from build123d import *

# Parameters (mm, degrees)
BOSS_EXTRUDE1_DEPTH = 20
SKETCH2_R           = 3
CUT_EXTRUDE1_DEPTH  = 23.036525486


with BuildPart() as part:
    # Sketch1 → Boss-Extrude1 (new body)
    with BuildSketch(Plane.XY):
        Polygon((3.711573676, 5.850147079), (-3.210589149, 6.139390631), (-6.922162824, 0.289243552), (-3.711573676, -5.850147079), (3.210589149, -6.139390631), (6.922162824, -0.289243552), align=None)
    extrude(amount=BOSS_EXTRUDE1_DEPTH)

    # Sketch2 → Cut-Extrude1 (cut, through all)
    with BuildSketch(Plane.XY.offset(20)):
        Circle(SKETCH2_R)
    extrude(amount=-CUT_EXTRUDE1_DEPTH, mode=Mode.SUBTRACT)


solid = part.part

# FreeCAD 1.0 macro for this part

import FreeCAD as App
import Part
import Sketcher
from FreeCAD import Vector
Q = App.Units.Quantity

doc = App.newDocument("Part")
body = doc.addObject("PartDesign::Body", "Body")

# Sketch on XY plane
sketch1 = body.newObject("Sketcher::SketchObject", "Sketch")
sketch1.AttachmentSupport = (doc.getObject("XY_Plane"), [""])
sketch1.MapMode = "FlatFace"
sketch1.addGeometry([
    Part.LineSegment(Vector(3.711574, 5.850147, 0), Vector(-3.210589, 6.139391, 0)),  # 0
    Part.LineSegment(Vector(-3.210589, 6.139391, 0), Vector(-6.922163, 0.289244, 0)),  # 1
    Part.LineSegment(Vector(-6.922163, 0.289244, 0), Vector(-3.711574, -5.850147, 0)),  # 2
    Part.LineSegment(Vector(-3.711574, -5.850147, 0), Vector(3.210589, -6.139391, 0)),  # 3
    Part.LineSegment(Vector(3.210589, -6.139391, 0), Vector(6.922163, -0.289244, 0)),  # 4
    Part.LineSegment(Vector(6.922163, -0.289244, 0), Vector(3.711574, 5.850147, 0)),  # 5
], False)
sketch1.addConstraint([
    Sketcher.Constraint("Coincident", 0, 2, 1, 1),
    Sketcher.Constraint("Coincident", 1, 2, 2, 1),
    Sketcher.Constraint("Coincident", 2, 2, 3, 1),
    Sketcher.Constraint("Coincident", 3, 2, 4, 1),
    Sketcher.Constraint("Coincident", 4, 2, 5, 1),
    Sketcher.Constraint("Coincident", 5, 2, 0, 1),
    Sketcher.Constraint("Symmetric", 0, 2, 3, 2, -1, 1),
    Sketcher.Constraint("Symmetric", 1, 2, 4, 2, -1, 1),
    Sketcher.Constraint("Symmetric", 2, 2, 5, 2, -1, 1),
    Sketcher.Constraint("Equal", 0, 1),
    Sketcher.Constraint("Equal", 1, 2),
    Sketcher.Constraint("DistanceX", 0, 2, -1, 1, Q("3.210589 mm")),
    Sketcher.Constraint("DistanceY", -1, 1, 0, 2, Q("6.139391 mm")),
    Sketcher.Constraint("DistanceX", 1, 2, 2, 2, Q("3.210589 mm")),
    Sketcher.Constraint("DistanceY", 2, 2, 1, 2, Q("6.139391 mm")),
])
pad1 = body.newObject("PartDesign::Pad", "Pad")
pad1.Profile = sketch1
pad1.Length = 20

# Sketch on XY plane
sketch2 = body.newObject("Sketcher::SketchObject", "Sketch001")
sketch2.AttachmentSupport = (doc.getObject("XY_Plane"), [""])
sketch2.MapMode = "FlatFace"
sketch2.AttachmentOffset = App.Placement(Vector(0, 0, 20), App.Rotation())
sketch2.addGeometry(Part.Circle(Vector(0, 0, 0), Vector(0, 0, 1), 3), False)
sketch2.addConstraint([
    Sketcher.Constraint("Coincident", 0, 3, -1, 1),
    Sketcher.Constraint("Diameter", 0, Q("6 mm")),
])
pocket1 = body.newObject("PartDesign::Pocket", "Pocket")
pocket1.Profile = sketch2
pocket1.Type = "ThroughAll"

doc.recompute()
